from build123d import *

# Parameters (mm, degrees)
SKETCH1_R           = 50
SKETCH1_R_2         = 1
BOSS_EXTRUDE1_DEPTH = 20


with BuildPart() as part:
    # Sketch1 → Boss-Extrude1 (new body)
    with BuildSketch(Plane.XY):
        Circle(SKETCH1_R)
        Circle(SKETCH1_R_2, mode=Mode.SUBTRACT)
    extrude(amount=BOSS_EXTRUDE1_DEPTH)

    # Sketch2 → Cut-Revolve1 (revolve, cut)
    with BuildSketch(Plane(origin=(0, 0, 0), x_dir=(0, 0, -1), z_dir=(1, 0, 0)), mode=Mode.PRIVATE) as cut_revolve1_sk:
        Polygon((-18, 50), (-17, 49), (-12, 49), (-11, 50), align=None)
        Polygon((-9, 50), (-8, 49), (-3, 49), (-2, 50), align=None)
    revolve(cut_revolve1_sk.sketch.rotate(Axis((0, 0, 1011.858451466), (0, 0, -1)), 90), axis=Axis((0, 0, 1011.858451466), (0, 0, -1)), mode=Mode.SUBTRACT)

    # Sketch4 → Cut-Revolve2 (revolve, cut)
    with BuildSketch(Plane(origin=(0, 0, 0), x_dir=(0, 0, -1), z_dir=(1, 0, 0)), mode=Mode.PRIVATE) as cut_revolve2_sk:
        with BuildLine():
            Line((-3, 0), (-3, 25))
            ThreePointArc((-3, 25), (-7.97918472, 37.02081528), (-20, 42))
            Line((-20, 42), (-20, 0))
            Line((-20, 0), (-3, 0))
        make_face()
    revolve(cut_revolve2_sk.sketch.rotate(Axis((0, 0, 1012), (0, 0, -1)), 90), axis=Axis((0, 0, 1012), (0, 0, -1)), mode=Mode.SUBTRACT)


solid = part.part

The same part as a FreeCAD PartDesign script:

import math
import FreeCAD as App
import Part
import Sketcher
Q = App.Units.Quantity

doc = App.newDocument("Part")
body = doc.addObject("PartDesign::Body", "Body")

sketch1 = body.newObject("Sketcher::SketchObject", "Sketch")
sketch1.AttachmentSupport = (doc.getObject("XY_Plane"), [""])
sketch1.MapMode = "FlatFace"
sketch1.addGeometry(Part.Circle(App.Vector(0, 0, 0), App.Vector(0, 0, 1), 50), False)
sketch1.addGeometry(Part.Circle(App.Vector(0, 0, 0), App.Vector(0, 0, 1), 1), False)
sketch1.addConstraint(Sketcher.Constraint("Coincident", 0, 3, -1, 1))
sketch1.addConstraint(Sketcher.Constraint("Coincident", 1, 3, -1, 1))
sketch1.addConstraint(Sketcher.Constraint("Diameter", 0, Q("100 mm")))
sketch1.addConstraint(Sketcher.Constraint("Diameter", 1, Q("2 mm")))
pad1 = body.newObject("PartDesign::Pad", "Pad")
pad1.Profile = sketch1
pad1.Length = 20

sketch2 = body.newObject("Sketcher::SketchObject", "Sketch001")
sketch2.AttachmentSupport = (doc.getObject("YZ_Plane"), [""])
sketch2.MapMode = "FlatFace"
sketch2.addGeometry(Part.LineSegment(App.Vector(50, 18, 0), App.Vector(49, 17, 0)), False)
sketch2.addGeometry(Part.LineSegment(App.Vector(49, 17, 0), App.Vector(49, 12, 0)), False)
sketch2.addGeometry(Part.LineSegment(App.Vector(49, 12, 0), App.Vector(50, 11, 0)), False)
sketch2.addGeometry(Part.LineSegment(App.Vector(50, 11, 0), App.Vector(50, 18, 0)), False)
sketch2.addGeometry(Part.LineSegment(App.Vector(50, 9, 0), App.Vector(49, 8, 0)), False)
sketch2.addGeometry(Part.LineSegment(App.Vector(49, 8, 0), App.Vector(49, 3, 0)), False)
sketch2.addGeometry(Part.LineSegment(App.Vector(49, 3, 0), App.Vector(50, 2, 0)), False)
sketch2.addGeometry(Part.LineSegment(App.Vector(50, 2, 0), App.Vector(50, 9, 0)), False)
sketch2.addConstraint(Sketcher.Constraint("Coincident", 0, 2, 1, 1))
sketch2.addConstraint(Sketcher.Constraint("Coincident", 1, 2, 2, 1))
sketch2.addConstraint(Sketcher.Constraint("Coincident", 2, 2, 3, 1))
sketch2.addConstraint(Sketcher.Constraint("Coincident", 3, 2, 0, 1))
sketch2.addConstraint(Sketcher.Constraint("Coincident", 4, 2, 5, 1))
sketch2.addConstraint(Sketcher.Constraint("Coincident", 5, 2, 6, 1))
sketch2.addConstraint(Sketcher.Constraint("Coincident", 6, 2, 7, 1))
sketch2.addConstraint(Sketcher.Constraint("Coincident", 7, 2, 4, 1))
sketch2.addConstraint(Sketcher.Constraint("Vertical", 1))
sketch2.addConstraint(Sketcher.Constraint("Vertical", 3))
sketch2.addConstraint(Sketcher.Constraint("Vertical", 5))
sketch2.addConstraint(Sketcher.Constraint("Vertical", 7))
sketch2.addConstraint(Sketcher.Constraint("Perpendicular", 0, 2))
sketch2.addConstraint(Sketcher.Constraint("Perpendicular", 2, 4))
sketch2.addConstraint(Sketcher.Constraint("Perpendicular", 4, 6))
sketch2.addConstraint(Sketcher.Constraint("Vertical", 1, 2, 4, 2))
sketch2.addConstraint(Sketcher.Constraint("Vertical", 3, 2, 6, 2))
sketch2.addConstraint(Sketcher.Constraint("Equal", 1, 5))
sketch2.addConstraint(Sketcher.Constraint("Equal", 0, 2))
sketch2.addConstraint(Sketcher.Constraint("DistanceY", 1, 2, 1, 1, Q("5 mm")))
sketch2.addConstraint(Sketcher.Constraint("DistanceY", 3, 1, 3, 2, Q("7 mm")))
sketch2.addConstraint(Sketcher.Constraint("DistanceX", -1, 1, 0, 2, Q("49 mm")))
sketch2.addConstraint(Sketcher.Constraint("DistanceY", -1, 1, 0, 2, Q("17 mm")))
sketch2.addConstraint(Sketcher.Constraint("DistanceY", -1, 1, 4, 2, Q("8 mm")))
groove = body.newObject("PartDesign::Groove", "Groove")
groove.Profile = sketch2
groove.ReferenceAxis = (sketch2, ["V_Axis"])
groove.Angle = 360

sketch3 = body.newObject("Sketcher::SketchObject", "Sketch002")
sketch3.AttachmentSupport = (doc.getObject("YZ_Plane"), [""])
sketch3.MapMode = "FlatFace"
sketch3.addGeometry(Part.LineSegment(App.Vector(0, 3, 0), App.Vector(25, 3, 0)), False)
sketch3.addGeometry(Part.ArcOfCircle(Part.Circle(App.Vector(25, 20, 0), App.Vector(0, 0, 1), 17), math.radians(-90), math.radians(0)), False)
sketch3.addGeometry(Part.LineSegment(App.Vector(42, 20, 0), App.Vector(0, 20, 0)), False)
sketch3.addGeometry(Part.LineSegment(App.Vector(0, 20, 0), App.Vector(0, 3, 0)), False)
sketch3.addConstraint(Sketcher.Constraint("Tangent", 0, 2, 1, 1))
sketch3.addConstraint(Sketcher.Constraint("Coincident", 1, 2, 2, 1))
sketch3.addConstraint(Sketcher.Constraint("Coincident", 2, 2, 3, 1))
sketch3.addConstraint(Sketcher.Constraint("Coincident", 3, 2, 0, 1))
sketch3.addConstraint(Sketcher.Constraint("Horizontal", 0))
sketch3.addConstraint(Sketcher.Constraint("Horizontal", 2))
sketch3.addConstraint(Sketcher.Constraint("Vertical", 3))
sketch3.addConstraint(Sketcher.Constraint("PointOnObject", 2, 2, -2))
sketch3.addConstraint(Sketcher.Constraint("Radius", 1, Q("17 mm")))
sketch3.addConstraint(Sketcher.Constraint("DistanceX", 0, 1, 0, 2, Q("25 mm")))
sketch3.addConstraint(Sketcher.Constraint("DistanceY", 3, 2, 3, 1, Q("17 mm")))
sketch3.addConstraint(Sketcher.Constraint("DistanceY", -1, 1, 1, 3, Q("20 mm")))
groove2 = body.newObject("PartDesign::Groove", "Groove001")
groove2.Profile = sketch3
groove2.ReferenceAxis = (sketch3, ["V_Axis"])
groove2.Angle = 360

doc.recompute()
